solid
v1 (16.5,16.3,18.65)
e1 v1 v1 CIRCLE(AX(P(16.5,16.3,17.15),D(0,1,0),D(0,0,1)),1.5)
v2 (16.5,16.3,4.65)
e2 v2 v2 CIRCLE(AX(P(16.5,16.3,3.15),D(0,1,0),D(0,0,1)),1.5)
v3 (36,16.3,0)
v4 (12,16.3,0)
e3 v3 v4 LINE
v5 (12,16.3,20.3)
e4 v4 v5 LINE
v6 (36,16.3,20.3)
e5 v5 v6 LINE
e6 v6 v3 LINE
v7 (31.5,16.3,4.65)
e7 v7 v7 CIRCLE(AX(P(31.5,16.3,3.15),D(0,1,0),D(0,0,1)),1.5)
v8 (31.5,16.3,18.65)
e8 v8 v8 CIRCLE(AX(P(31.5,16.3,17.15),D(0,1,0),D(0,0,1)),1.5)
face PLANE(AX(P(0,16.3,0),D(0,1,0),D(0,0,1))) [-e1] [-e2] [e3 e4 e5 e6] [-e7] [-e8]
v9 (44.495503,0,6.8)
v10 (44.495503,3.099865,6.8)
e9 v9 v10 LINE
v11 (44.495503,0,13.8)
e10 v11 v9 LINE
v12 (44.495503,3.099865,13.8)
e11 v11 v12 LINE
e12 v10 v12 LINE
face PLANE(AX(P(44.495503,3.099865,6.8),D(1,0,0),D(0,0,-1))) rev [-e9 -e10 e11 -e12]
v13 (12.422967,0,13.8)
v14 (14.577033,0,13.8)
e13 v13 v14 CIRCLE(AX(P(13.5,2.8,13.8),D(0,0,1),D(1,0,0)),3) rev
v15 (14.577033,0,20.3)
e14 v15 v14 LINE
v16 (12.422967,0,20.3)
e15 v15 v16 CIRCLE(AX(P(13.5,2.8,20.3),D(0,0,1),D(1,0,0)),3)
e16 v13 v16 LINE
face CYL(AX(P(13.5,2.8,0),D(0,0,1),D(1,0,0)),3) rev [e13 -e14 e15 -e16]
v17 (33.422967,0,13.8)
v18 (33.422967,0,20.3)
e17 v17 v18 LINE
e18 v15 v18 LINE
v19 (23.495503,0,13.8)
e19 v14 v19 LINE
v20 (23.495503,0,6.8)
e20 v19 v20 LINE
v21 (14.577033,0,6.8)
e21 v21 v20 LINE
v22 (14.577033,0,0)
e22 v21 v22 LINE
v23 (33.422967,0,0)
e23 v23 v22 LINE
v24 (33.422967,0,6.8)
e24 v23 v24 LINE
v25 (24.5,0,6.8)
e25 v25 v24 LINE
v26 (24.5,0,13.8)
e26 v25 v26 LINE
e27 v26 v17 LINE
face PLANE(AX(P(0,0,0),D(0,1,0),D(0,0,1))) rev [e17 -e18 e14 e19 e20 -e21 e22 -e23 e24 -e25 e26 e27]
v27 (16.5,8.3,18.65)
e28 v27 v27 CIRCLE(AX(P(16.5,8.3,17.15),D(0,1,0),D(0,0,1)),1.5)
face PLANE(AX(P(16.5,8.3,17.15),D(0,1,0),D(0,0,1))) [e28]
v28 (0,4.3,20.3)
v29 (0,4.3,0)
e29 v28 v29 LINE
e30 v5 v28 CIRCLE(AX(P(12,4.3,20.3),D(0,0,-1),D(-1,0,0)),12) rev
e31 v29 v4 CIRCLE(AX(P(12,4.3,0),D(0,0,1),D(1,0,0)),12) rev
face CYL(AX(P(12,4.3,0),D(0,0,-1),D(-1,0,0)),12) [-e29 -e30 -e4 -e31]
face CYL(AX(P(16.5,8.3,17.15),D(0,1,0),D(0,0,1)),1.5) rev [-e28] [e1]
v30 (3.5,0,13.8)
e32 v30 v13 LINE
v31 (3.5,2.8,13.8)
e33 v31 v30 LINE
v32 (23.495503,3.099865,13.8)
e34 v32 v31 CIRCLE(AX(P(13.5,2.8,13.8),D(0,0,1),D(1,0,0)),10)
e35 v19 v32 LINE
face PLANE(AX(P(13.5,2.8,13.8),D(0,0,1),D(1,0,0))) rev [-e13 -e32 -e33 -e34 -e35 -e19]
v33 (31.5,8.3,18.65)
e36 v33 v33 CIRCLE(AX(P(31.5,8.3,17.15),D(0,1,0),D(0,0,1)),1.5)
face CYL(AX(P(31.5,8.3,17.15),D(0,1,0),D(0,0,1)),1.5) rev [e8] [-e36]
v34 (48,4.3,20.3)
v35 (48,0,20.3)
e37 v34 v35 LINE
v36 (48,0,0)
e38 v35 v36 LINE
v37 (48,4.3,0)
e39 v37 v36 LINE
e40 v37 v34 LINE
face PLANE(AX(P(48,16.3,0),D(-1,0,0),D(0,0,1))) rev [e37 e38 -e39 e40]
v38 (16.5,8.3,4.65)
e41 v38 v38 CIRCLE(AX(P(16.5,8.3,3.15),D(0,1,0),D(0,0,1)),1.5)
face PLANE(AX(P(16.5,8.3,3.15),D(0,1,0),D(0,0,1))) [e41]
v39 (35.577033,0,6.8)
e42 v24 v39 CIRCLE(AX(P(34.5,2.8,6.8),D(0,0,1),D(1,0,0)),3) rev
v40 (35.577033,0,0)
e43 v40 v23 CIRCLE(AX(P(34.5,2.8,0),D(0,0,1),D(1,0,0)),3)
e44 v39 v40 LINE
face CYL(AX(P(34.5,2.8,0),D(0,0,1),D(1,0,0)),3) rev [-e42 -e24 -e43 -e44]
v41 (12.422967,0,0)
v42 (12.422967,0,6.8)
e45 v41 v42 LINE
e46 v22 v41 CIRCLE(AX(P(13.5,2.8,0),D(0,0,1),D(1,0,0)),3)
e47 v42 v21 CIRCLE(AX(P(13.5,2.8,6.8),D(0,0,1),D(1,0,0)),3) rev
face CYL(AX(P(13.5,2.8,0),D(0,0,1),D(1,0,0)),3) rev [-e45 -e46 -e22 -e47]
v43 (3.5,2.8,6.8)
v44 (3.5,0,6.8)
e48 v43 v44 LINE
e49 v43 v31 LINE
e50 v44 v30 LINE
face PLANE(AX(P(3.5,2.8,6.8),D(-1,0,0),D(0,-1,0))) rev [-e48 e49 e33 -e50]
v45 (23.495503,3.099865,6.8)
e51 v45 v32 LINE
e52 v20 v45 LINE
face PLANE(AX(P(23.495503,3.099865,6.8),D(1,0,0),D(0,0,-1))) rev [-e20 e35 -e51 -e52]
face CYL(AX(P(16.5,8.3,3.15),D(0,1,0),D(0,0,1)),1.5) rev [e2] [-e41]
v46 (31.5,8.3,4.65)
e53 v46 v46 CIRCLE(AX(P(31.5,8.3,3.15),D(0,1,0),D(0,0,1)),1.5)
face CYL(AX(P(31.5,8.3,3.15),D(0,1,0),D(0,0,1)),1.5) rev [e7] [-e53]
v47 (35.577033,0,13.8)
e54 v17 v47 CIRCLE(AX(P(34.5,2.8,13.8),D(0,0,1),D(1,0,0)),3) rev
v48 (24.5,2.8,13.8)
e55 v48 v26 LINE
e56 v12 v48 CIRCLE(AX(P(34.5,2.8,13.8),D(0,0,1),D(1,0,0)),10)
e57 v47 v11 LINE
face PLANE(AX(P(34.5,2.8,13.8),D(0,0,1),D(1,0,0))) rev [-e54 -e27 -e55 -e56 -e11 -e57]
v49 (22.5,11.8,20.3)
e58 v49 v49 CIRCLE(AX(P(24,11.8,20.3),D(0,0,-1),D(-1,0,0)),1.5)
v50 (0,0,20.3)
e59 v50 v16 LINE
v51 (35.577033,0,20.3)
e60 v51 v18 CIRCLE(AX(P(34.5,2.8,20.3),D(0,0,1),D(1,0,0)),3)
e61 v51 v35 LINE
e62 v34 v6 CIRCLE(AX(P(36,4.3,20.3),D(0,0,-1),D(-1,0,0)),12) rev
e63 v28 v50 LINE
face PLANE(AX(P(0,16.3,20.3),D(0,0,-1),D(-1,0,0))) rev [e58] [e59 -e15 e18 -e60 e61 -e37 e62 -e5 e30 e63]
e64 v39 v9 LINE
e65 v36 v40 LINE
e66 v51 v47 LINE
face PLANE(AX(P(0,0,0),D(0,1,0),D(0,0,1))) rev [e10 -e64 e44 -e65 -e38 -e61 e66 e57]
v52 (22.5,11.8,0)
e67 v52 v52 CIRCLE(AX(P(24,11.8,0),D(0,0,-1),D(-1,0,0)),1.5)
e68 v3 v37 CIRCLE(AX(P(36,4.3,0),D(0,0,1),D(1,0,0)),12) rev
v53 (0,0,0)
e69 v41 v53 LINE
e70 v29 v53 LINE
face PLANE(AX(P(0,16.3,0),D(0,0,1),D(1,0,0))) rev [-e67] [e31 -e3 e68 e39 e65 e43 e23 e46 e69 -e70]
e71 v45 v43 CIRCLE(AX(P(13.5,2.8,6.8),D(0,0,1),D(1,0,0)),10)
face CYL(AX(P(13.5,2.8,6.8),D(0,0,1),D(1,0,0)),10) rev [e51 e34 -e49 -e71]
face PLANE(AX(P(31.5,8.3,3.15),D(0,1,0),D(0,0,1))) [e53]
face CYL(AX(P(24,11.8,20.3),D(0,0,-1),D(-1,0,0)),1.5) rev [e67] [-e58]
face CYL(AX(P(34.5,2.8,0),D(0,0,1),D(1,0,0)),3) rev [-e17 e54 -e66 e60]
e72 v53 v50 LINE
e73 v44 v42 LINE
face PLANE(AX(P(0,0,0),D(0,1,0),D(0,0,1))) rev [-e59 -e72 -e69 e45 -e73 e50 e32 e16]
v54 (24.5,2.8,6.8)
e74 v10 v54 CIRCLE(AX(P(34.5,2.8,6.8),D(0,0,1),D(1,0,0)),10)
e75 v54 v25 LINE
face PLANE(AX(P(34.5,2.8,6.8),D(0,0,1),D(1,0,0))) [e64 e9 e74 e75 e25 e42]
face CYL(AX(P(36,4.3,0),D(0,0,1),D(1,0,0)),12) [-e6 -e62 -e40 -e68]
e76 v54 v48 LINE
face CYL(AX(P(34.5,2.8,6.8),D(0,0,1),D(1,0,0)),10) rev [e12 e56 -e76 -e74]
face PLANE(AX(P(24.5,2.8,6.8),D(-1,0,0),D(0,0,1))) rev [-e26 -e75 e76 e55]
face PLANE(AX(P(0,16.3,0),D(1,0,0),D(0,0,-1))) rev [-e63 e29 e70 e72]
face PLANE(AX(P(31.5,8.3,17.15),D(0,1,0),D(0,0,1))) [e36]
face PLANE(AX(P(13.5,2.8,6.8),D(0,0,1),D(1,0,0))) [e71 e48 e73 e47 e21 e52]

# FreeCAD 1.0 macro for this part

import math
import FreeCAD as App
import Part
import Sketcher
Q = App.Units.Quantity


def edges_at(feature, points):
    """Names of the edges that pass closest to the given points."""
    edges = feature.Shape.Edges
    near = lambda p: min(range(len(edges)), key=lambda i: edges[i].distToShape(Part.Vertex(*p))[0])
    return sorted({f"Edge{near(p) + 1}" for p in points})


def add_polygon(sketch, points):
    """Adds a closed chain of lines whose ends are joined by coincident constraints."""
    first, n = sketch.GeometryCount, len(points)
    for a, b in zip(points, points[1:] + points[:1]):
        sketch.addGeometry(Part.LineSegment(App.Vector(*a, 0), App.Vector(*b, 0)), False)
    for i in range(n):
        sketch.addConstraint(Sketcher.Constraint("Coincident", first + i, 2, first + (i + 1) % n, 1))

doc = App.newDocument("Part")
body = doc.addObject("PartDesign::Body", "Body")

sketch1 = body.newObject("Sketcher::SketchObject", "Sketch")
sketch1.AttachmentSupport = (doc.getObject("XZ_Plane"), [""])
sketch1.MapMode = "FlatFace"
add_polygon(sketch1, [(0, 0), (0, 20.3), (48, 20.3), (48, 0)])
sketch1.addConstraint([
    Sketcher.Constraint("Vertical", 0),
    Sketcher.Constraint("Horizontal", 1),
    Sketcher.Constraint("Vertical", 2),
    Sketcher.Constraint("Horizontal", 3),
    Sketcher.Constraint("Coincident", 3, 2, -1, 1),
    Sketcher.Constraint("DistanceX", 1, 1, 1, 2, Q("48 mm")),
    Sketcher.Constraint("DistanceY", 0, 1, 0, 2, Q("20.3 mm")),
])
pad1 = body.newObject("PartDesign::Pad", "Pad")
pad1.Profile = sketch1
pad1.Length = 16.3
pad1.Reversed = True

sketch2 = body.newObject("Sketcher::SketchObject", "Sketch001")
sketch2.AttachmentSupport = (doc.getObject("XY_Plane"), [""])
sketch2.MapMode = "FlatFace"
sketch2.AttachmentOffset = App.Placement(App.Vector(0, 0, 20.3), App.Rotation())
sketch2.addGeometry([
    Part.Circle(App.Vector(13.5, 2.8, 0), App.Vector(0, 0, 1), 3),
    Part.Circle(App.Vector(34.5, 2.8, 0), App.Vector(0, 0, 1), 3),
], False)
sketch2.addConstraint([
    Sketcher.Constraint("Equal", 0, 1),
    Sketcher.Constraint("Horizontal", 0, 3, 1, 3),
    Sketcher.Constraint("Diameter", 0, Q("6 mm")),
    Sketcher.Constraint("DistanceX", 0, 3, 1, 3, Q("21 mm")),
    Sketcher.Constraint("DistanceX", -1, 1, 0, 3, Q("13.5 mm")),
    Sketcher.Constraint("DistanceY", -1, 1, 0, 3, Q("2.8 mm")),
])
pocket1 = body.newObject("PartDesign::Pocket", "Pocket")
pocket1.Profile = sketch2
pocket1.Type = "ThroughAll"

sketch3 = body.newObject("Sketcher::SketchObject", "Sketch002")
sketch3.AttachmentSupport = (doc.getObject("XY_Plane"), [""])
sketch3.MapMode = "FlatFace"
sketch3.AttachmentOffset = App.Placement(App.Vector(0, 0, 10.3), App.Rotation())
sketch3.addGeometry([
    Part.LineSegment(App.Vector(3.5, 2.8, 0), App.Vector(3.5, -6.25, 0)),
    Part.LineSegment(App.Vector(3.5, -6.25, 0), App.Vector(23.495503, -6.25, 0)),
    Part.LineSegment(App.Vector(23.495503, -6.25, 0), App.Vector(23.495503, 3.099865, 0)),
    Part.ArcOfCircle(Part.Circle(App.Vector(13.5, 2.8, 0), App.Vector(0, 0, 1), 10), math.radians(1.718358), math.radians(180)),
    Part.LineSegment(App.Vector(24.5, 2.8, 0), App.Vector(24.5, -6.25, 0)),
    Part.LineSegment(App.Vector(24.5, -6.25, 0), App.Vector(44.495503, -6.25, 0)),
    Part.LineSegment(App.Vector(44.495503, -6.25, 0), App.Vector(44.495503, 3.099865, 0)),
    Part.ArcOfCircle(Part.Circle(App.Vector(34.5, 2.8, 0), App.Vector(0, 0, 1), 10), math.radians(1.718358), math.radians(180)),
], False)
sketch3.addConstraint([
    Sketcher.Constraint("Coincident", 0, 2, 1, 1),
    Sketcher.Constraint("Coincident", 1, 2, 2, 1),
    Sketcher.Constraint("Coincident", 2, 2, 3, 1),
    Sketcher.Constraint("Tangent", 3, 2, 0, 1),
    Sketcher.Constraint("Coincident", 4, 2, 5, 1),
    Sketcher.Constraint("Coincident", 5, 2, 6, 1),
    Sketcher.Constraint("Coincident", 6, 2, 7, 1),
    Sketcher.Constraint("Tangent", 7, 2, 4, 1),
    Sketcher.Constraint("Vertical", 0),
    Sketcher.Constraint("Horizontal", 1),
    Sketcher.Constraint("Vertical", 2),
    Sketcher.Constraint("Vertical", 4),
    Sketcher.Constraint("Horizontal", 5),
    Sketcher.Constraint("Vertical", 6),
    Sketcher.Constraint("Equal", 3, 7),
    Sketcher.Constraint("Horizontal", 3, 3, 7, 3),
    Sketcher.Constraint("Horizontal", 1, 2, 4, 2),
    Sketcher.Constraint("Horizontal", 2, 2, 6, 2),
    Sketcher.Constraint("Radius", 3, Q("10 mm")),
    Sketcher.Constraint("DistanceX", 3, 3, 7, 3, Q("21 mm")),
    Sketcher.Constraint("DistanceY", 0, 2, 0, 1, Q("9.05 mm")),
    Sketcher.Constraint("DistanceX", -1, 1, 3, 3, Q("13.5 mm")),
    Sketcher.Constraint("DistanceY", -1, 1, 3, 3, Q("2.8 mm")),
    Sketcher.Constraint("DistanceX", 1, 1, 1, 2, Q("19.995503 mm")),
])
pocket2 = body.newObject("PartDesign::Pocket", "Pocket001")
pocket2.Profile = sketch3
pocket2.Length = 7
pocket2.Midplane = True
doc.recompute()

fillet = body.newObject("PartDesign::Fillet", "Fillet")
fillet.Base = (pocket2, edges_at(pocket2, [(48, 16.3, 10.15), (0, 16.3, 10.15)]))
fillet.Radius = 12

sketch4 = body.newObject("Sketcher::SketchObject", "Sketch003")
sketch4.AttachmentSupport = (doc.getObject("XY_Plane"), [""])
sketch4.MapMode = "FlatFace"
sketch4.addGeometry(Part.Circle(App.Vector(24, 11.8, 0), App.Vector(0, 0, 1), 1.5), False)
sketch4.addConstraint([
    Sketcher.Constraint("Diameter", 0, Q("3 mm")),
    Sketcher.Constraint("DistanceX", -1, 1, 0, 3, Q("24 mm")),
    Sketcher.Constraint("DistanceY", -1, 1, 0, 3, Q("11.8 mm")),
])
pocket3 = body.newObject("PartDesign::Pocket", "Pocket002")
pocket3.Profile = sketch4
pocket3.Type = "ThroughAll"
pocket3.Reversed = True

sketch5 = body.newObject("Sketcher::SketchObject", "Sketch004")
sketch5.AttachmentSupport = (doc.getObject("XZ_Plane"), [""])
sketch5.MapMode = "FlatFace"
sketch5.AttachmentOffset = App.Placement(App.Vector(0, 0, -16.3), App.Rotation())
sketch5.addGeometry([
    Part.Circle(App.Vector(31.5, 17.15, 0), App.Vector(0, 0, 1), 1.5),
    Part.Circle(App.Vector(16.5, 17.15, 0), App.Vector(0, 0, 1), 1.5),
    Part.Circle(App.Vector(16.5, 3.15, 0), App.Vector(0, 0, 1), 1.5),
    Part.Circle(App.Vector(31.5, 3.15, 0), App.Vector(0, 0, 1), 1.5),
], False)
sketch5.addConstraint([
    Sketcher.Constraint("Equal", 0, 1),
    Sketcher.Constraint("Equal", 1, 2),
    Sketcher.Constraint("Equal", 2, 3),
    Sketcher.Constraint("Horizontal", 0, 3, 1, 3),
    Sketcher.Constraint("Horizontal", 2, 3, 3, 3),
    Sketcher.Constraint("Vertical", 1, 3, 2, 3),
    Sketcher.Constraint("Vertical", 0, 3, 3, 3),
    Sketcher.Constraint("Diameter", 0, Q("3 mm")),
    Sketcher.Constraint("DistanceX", 1, 3, 0, 3, Q("15 mm")),
    Sketcher.Constraint("DistanceY", 2, 3, 1, 3, Q("14 mm")),
    Sketcher.Constraint("DistanceX", -1, 1, 0, 3, Q("31.5 mm")),
    Sketcher.Constraint("DistanceY", -1, 1, 0, 3, Q("17.15 mm")),
])
pocket4 = body.newObject("PartDesign::Pocket", "Pocket003")
pocket4.Profile = sketch5
pocket4.Length = 8
pocket4.Reversed = True

doc.recompute()
